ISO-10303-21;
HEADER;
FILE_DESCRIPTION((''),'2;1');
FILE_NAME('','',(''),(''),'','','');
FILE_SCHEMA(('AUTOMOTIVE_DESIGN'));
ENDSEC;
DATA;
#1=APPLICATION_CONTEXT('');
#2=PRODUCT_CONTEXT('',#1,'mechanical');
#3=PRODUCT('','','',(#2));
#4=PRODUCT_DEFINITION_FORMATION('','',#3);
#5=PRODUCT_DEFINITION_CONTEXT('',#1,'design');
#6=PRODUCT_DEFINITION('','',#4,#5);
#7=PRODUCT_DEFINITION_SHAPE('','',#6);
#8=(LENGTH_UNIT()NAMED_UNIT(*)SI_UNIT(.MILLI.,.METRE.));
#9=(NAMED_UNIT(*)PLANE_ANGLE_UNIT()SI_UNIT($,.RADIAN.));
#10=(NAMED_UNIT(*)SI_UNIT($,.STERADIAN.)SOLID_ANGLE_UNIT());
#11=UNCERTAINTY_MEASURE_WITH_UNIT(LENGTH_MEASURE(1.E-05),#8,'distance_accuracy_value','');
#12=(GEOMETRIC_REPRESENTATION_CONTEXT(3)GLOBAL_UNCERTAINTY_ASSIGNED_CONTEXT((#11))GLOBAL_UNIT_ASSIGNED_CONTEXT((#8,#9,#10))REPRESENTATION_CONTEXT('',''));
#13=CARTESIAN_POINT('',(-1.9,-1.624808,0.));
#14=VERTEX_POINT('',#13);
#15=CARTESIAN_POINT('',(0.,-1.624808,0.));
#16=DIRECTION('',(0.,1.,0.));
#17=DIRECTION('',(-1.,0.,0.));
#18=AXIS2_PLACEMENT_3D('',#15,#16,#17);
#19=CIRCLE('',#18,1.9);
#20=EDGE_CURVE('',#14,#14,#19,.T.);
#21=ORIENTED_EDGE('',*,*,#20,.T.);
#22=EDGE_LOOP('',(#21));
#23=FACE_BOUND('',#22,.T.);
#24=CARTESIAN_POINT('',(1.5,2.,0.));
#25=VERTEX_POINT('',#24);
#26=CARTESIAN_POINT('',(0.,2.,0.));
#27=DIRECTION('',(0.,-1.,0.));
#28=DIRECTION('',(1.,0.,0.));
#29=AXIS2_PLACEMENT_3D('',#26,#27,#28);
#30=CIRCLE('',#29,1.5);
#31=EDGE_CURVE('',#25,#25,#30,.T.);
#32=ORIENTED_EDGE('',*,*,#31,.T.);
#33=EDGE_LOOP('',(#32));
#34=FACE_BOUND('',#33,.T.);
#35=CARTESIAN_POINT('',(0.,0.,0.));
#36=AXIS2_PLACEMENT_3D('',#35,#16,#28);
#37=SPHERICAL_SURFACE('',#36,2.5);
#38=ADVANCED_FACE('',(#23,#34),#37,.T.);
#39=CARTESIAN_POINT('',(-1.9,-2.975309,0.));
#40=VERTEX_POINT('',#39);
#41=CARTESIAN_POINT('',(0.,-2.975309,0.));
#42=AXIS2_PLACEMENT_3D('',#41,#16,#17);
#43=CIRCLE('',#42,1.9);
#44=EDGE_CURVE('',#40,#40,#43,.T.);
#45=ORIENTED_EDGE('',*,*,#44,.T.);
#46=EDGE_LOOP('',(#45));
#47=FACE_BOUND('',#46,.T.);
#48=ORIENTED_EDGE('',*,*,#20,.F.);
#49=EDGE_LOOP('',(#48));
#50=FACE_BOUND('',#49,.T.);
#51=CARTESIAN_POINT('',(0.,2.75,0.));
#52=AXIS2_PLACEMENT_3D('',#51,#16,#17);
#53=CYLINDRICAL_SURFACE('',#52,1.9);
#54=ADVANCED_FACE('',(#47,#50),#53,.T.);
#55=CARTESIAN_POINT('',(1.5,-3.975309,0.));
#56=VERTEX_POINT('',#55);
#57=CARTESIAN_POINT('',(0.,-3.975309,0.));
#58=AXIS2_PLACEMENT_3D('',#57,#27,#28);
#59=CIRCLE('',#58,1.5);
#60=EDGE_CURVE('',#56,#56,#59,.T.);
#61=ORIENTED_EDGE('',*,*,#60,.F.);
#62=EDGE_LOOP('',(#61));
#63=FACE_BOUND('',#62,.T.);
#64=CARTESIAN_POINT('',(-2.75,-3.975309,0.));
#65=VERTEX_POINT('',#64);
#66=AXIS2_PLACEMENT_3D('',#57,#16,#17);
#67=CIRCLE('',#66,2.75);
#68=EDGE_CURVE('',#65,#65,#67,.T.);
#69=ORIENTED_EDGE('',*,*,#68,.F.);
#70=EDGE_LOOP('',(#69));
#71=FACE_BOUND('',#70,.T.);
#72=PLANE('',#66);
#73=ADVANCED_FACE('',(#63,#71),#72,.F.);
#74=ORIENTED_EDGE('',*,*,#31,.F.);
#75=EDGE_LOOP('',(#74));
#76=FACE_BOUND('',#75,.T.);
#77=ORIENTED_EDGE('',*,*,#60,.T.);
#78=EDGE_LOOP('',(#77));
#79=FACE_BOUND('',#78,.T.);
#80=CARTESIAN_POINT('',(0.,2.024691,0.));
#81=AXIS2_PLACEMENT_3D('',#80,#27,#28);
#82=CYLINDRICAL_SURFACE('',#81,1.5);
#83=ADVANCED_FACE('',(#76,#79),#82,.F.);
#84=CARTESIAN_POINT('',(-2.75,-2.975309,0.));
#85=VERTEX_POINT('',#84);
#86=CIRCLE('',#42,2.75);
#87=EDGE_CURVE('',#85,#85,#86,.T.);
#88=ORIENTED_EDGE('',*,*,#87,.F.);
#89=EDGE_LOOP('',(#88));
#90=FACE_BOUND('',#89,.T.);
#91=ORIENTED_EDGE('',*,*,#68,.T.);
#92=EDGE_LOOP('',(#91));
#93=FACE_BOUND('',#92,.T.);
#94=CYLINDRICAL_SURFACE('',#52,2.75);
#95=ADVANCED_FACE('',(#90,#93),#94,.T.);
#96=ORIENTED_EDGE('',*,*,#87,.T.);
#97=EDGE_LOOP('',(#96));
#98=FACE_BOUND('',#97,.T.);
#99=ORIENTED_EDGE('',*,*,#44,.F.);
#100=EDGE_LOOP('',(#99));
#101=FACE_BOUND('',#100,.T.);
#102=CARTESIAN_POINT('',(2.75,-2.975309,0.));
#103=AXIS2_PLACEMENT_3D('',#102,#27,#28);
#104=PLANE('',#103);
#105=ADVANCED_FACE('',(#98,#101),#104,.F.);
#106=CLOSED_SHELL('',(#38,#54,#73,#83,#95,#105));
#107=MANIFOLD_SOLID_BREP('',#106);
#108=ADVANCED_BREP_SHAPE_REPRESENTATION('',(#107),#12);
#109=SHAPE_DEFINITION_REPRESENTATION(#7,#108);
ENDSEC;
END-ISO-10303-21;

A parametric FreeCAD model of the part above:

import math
import FreeCAD as App
import Part
import Sketcher

doc = App.newDocument("Part")
params = doc.addObject("Spreadsheet::Sheet", "Params")
for row, (alias, value) in enumerate([
    ("sketch1_radius", "2.5 mm"),
    ("sketch1_height", "1 mm"),
    ("sketch1_height2", "6 mm"),
    ("sketch1_width", "2.75 mm"),
    ("sketch1_width2", "0.85 mm"),
    ("revolution_angle", "360 deg"),
    ("sketch2_diameter", "3 mm"),
], start=1):
    params.set(f"A{row}", alias)
    params.set(f"B{row}", "=" + value)
    params.setAlias(f"B{row}", alias)

body = doc.addObject("PartDesign::Body", "Body")

sketch1 = body.newObject("Sketcher::SketchObject", "Sketch")
sketch1.AttachmentSupport = (doc.getObject("XY_Plane"), [""])
sketch1.MapMode = "FlatFace"
sketch1.addGeometry([
    Part.LineSegment(App.Vector(0, -4, 0), App.Vector(2.8, -4, 0)),
    Part.LineSegment(App.Vector(2.8, -4, 0), App.Vector(2.8, -3, 0)),
    Part.LineSegment(App.Vector(2.8, -3, 0), App.Vector(1.9, -3, 0)),
    Part.LineSegment(App.Vector(1.9, -3, 0), App.Vector(1.9, -1.6, 0)),
    Part.ArcOfCircle(Part.Circle(App.Vector(0, 0, 0), App.Vector(0, 0, 1), 2.5), math.radians(-41), math.radians(54)),
    Part.LineSegment(App.Vector(1.5, 2, 0), App.Vector(0, 2, 0)),
    Part.LineSegment(App.Vector(0, 2, 0), App.Vector(0, -4, 0)),
], False)
sketch1.addConstraint([
    Sketcher.Constraint("Coincident", 0, 2, 1, 1),
    Sketcher.Constraint("Coincident", 1, 2, 2, 1),
    Sketcher.Constraint("Coincident", 2, 2, 3, 1),
    Sketcher.Constraint("Coincident", 3, 2, 4, 1),
    Sketcher.Constraint("Coincident", 4, 2, 5, 1),
    Sketcher.Constraint("Coincident", 5, 2, 6, 1),
    Sketcher.Constraint("Coincident", 6, 2, 0, 1),
    Sketcher.Constraint("Horizontal", 0),
    Sketcher.Constraint("Vertical", 1),
    Sketcher.Constraint("Horizontal", 2),
    Sketcher.Constraint("Vertical", 3),
    Sketcher.Constraint("Horizontal", 5),
    Sketcher.Constraint("Vertical", 6),
    Sketcher.Constraint("Coincident", 4, 3, -1, 1),
    Sketcher.Constraint("PointOnObject", 5, 2, -2),
    Sketcher.Constraint("Radius", 4, 2.5),
    Sketcher.Constraint("DistanceY", 1, 1, 1, 2, 1.0),
    Sketcher.Constraint("DistanceY", 6, 2, 6, 1, 6.0),
    Sketcher.Constraint("DistanceX", 0, 1, 0, 2, 2.75),
    Sketcher.Constraint("DistanceX", 2, 2, 2, 1, 0.85),
    Sketcher.Constraint("DistanceX", 5, 2, 5, 1, 1.466501),
])
sketch1.setExpression("Constraints[15]", "Params.sketch1_radius")
sketch1.setExpression("Constraints[16]", "Params.sketch1_height")
sketch1.setExpression("Constraints[17]", "Params.sketch1_height2")
sketch1.setExpression("Constraints[18]", "Params.sketch1_width")
sketch1.setExpression("Constraints[19]", "Params.sketch1_width2")
revolution = body.newObject("PartDesign::Revolution", "Revolution")
revolution.Profile = sketch1
revolution.ReferenceAxis = (sketch1, ["V_Axis"])
revolution.setExpression("Angle", "Params.revolution_angle")

sketch2 = body.newObject("Sketcher::SketchObject", "Sketch001")
sketch2.AttachmentSupport = (doc.getObject("XZ_Plane"), [""])
sketch2.MapMode = "FlatFace"
sketch2.AttachmentOffset = App.Placement(App.Vector(0, 0, 3.975309), App.Rotation())
sketch2.addGeometry(Part.Circle(App.Vector(0, 0, 0), App.Vector(0, 0, 1), 1.5), False)
sketch2.addConstraint([
    Sketcher.Constraint("Coincident", 0, 3, -1, 1),
    Sketcher.Constraint("Diameter", 0, 3.0),
])
sketch2.setExpression("Constraints[1]", "Params.sketch2_diameter")
pocket1 = body.newObject("PartDesign::Pocket", "Pocket")
pocket1.Profile = sketch2
pocket1.Type = "ThroughAll"

doc.recompute()
